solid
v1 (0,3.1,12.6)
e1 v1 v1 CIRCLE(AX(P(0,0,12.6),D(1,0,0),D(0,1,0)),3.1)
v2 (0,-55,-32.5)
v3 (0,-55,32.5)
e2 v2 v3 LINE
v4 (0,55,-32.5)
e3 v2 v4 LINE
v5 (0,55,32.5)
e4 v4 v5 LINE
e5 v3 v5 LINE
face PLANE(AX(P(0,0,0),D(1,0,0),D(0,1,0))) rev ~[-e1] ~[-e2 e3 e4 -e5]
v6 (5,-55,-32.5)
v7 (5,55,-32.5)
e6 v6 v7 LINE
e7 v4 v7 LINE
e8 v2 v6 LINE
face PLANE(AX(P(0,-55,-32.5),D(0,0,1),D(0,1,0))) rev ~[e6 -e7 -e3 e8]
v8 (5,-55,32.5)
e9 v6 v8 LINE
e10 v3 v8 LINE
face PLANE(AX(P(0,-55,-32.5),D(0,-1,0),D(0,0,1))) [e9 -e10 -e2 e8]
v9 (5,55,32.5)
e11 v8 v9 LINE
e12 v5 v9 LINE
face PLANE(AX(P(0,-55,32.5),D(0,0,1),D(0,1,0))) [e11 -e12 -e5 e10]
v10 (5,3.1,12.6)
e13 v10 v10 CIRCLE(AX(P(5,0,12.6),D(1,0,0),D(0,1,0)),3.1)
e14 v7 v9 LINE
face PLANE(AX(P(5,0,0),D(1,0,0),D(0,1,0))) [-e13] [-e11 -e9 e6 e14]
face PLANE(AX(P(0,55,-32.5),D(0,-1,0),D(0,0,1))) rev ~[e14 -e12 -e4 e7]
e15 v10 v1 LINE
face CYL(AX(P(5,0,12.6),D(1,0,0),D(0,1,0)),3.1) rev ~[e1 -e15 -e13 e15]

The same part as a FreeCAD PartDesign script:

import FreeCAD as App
import Part
import Sketcher

V = App.Vector
Q = App.Units.Quantity


def add_polygon(sketch, points):
    """Adds a closed chain of lines whose ends are joined by coincident constraints."""
    first, n = sketch.GeometryCount, len(points)
    for a, b in zip(points, points[1:] + points[:1]):
        sketch.addGeometry(Part.LineSegment(App.Vector(*a, 0), App.Vector(*b, 0)), False)
    for i in range(n):
        sketch.addConstraint(Sketcher.Constraint("Coincident", first + i, 2, first + (i + 1) % n, 1))

doc = App.newDocument("Part")
body = doc.addObject("PartDesign::Body", "Body")

# Sketch on YZ plane
sketch1 = body.newObject("Sketcher::SketchObject", "Sketch")
sketch1.AttachmentSupport = (doc.getObject("YZ_Plane"), [""])
sketch1.MapMode = "FlatFace"
add_polygon(sketch1, [(-55, 32.5), (-55, -32.5), (55, -32.5), (55, 32.5)])  # lines 0-3
sketch1.addConstraint(Sketcher.Constraint("Vertical", 0))
sketch1.addConstraint(Sketcher.Constraint("Horizontal", 1))
sketch1.addConstraint(Sketcher.Constraint("Vertical", 2))
sketch1.addConstraint(Sketcher.Constraint("Horizontal", 3))
sketch1.addConstraint(Sketcher.Constraint("Symmetric", 0, 2, 2, 2, -1, 1))
sketch1.addConstraint(Sketcher.Constraint("DistanceX", 1, 1, 1, 2, Q("110 mm")))
sketch1.addConstraint(Sketcher.Constraint("DistanceY", 0, 2, 0, 1, Q("65 mm")))
pad1 = body.newObject("PartDesign::Pad", "Pad")
pad1.Profile = sketch1
pad1.Length = 5

# Sketch on YZ plane
sketch2 = body.newObject("Sketcher::SketchObject", "Sketch001")
sketch2.AttachmentSupport = (doc.getObject("YZ_Plane"), [""])
sketch2.MapMode = "FlatFace"
sketch2.AttachmentOffset = App.Placement(V(0, 0, 5), App.Rotation())
sketch2.addGeometry(Part.Circle(V(0, 12.6, 0), V(0, 0, 1), 3.1), False)
sketch2.addConstraint(Sketcher.Constraint("PointOnObject", 0, 3, -2))
sketch2.addConstraint(Sketcher.Constraint("Diameter", 0, Q("6.2 mm")))
sketch2.addConstraint(Sketcher.Constraint("DistanceY", -1, 1, 0, 3, Q("12.6 mm")))
pocket1 = body.newObject("PartDesign::Pocket", "Pocket")
pocket1.Profile = sketch2
pocket1.Length = 25

doc.recompute()
